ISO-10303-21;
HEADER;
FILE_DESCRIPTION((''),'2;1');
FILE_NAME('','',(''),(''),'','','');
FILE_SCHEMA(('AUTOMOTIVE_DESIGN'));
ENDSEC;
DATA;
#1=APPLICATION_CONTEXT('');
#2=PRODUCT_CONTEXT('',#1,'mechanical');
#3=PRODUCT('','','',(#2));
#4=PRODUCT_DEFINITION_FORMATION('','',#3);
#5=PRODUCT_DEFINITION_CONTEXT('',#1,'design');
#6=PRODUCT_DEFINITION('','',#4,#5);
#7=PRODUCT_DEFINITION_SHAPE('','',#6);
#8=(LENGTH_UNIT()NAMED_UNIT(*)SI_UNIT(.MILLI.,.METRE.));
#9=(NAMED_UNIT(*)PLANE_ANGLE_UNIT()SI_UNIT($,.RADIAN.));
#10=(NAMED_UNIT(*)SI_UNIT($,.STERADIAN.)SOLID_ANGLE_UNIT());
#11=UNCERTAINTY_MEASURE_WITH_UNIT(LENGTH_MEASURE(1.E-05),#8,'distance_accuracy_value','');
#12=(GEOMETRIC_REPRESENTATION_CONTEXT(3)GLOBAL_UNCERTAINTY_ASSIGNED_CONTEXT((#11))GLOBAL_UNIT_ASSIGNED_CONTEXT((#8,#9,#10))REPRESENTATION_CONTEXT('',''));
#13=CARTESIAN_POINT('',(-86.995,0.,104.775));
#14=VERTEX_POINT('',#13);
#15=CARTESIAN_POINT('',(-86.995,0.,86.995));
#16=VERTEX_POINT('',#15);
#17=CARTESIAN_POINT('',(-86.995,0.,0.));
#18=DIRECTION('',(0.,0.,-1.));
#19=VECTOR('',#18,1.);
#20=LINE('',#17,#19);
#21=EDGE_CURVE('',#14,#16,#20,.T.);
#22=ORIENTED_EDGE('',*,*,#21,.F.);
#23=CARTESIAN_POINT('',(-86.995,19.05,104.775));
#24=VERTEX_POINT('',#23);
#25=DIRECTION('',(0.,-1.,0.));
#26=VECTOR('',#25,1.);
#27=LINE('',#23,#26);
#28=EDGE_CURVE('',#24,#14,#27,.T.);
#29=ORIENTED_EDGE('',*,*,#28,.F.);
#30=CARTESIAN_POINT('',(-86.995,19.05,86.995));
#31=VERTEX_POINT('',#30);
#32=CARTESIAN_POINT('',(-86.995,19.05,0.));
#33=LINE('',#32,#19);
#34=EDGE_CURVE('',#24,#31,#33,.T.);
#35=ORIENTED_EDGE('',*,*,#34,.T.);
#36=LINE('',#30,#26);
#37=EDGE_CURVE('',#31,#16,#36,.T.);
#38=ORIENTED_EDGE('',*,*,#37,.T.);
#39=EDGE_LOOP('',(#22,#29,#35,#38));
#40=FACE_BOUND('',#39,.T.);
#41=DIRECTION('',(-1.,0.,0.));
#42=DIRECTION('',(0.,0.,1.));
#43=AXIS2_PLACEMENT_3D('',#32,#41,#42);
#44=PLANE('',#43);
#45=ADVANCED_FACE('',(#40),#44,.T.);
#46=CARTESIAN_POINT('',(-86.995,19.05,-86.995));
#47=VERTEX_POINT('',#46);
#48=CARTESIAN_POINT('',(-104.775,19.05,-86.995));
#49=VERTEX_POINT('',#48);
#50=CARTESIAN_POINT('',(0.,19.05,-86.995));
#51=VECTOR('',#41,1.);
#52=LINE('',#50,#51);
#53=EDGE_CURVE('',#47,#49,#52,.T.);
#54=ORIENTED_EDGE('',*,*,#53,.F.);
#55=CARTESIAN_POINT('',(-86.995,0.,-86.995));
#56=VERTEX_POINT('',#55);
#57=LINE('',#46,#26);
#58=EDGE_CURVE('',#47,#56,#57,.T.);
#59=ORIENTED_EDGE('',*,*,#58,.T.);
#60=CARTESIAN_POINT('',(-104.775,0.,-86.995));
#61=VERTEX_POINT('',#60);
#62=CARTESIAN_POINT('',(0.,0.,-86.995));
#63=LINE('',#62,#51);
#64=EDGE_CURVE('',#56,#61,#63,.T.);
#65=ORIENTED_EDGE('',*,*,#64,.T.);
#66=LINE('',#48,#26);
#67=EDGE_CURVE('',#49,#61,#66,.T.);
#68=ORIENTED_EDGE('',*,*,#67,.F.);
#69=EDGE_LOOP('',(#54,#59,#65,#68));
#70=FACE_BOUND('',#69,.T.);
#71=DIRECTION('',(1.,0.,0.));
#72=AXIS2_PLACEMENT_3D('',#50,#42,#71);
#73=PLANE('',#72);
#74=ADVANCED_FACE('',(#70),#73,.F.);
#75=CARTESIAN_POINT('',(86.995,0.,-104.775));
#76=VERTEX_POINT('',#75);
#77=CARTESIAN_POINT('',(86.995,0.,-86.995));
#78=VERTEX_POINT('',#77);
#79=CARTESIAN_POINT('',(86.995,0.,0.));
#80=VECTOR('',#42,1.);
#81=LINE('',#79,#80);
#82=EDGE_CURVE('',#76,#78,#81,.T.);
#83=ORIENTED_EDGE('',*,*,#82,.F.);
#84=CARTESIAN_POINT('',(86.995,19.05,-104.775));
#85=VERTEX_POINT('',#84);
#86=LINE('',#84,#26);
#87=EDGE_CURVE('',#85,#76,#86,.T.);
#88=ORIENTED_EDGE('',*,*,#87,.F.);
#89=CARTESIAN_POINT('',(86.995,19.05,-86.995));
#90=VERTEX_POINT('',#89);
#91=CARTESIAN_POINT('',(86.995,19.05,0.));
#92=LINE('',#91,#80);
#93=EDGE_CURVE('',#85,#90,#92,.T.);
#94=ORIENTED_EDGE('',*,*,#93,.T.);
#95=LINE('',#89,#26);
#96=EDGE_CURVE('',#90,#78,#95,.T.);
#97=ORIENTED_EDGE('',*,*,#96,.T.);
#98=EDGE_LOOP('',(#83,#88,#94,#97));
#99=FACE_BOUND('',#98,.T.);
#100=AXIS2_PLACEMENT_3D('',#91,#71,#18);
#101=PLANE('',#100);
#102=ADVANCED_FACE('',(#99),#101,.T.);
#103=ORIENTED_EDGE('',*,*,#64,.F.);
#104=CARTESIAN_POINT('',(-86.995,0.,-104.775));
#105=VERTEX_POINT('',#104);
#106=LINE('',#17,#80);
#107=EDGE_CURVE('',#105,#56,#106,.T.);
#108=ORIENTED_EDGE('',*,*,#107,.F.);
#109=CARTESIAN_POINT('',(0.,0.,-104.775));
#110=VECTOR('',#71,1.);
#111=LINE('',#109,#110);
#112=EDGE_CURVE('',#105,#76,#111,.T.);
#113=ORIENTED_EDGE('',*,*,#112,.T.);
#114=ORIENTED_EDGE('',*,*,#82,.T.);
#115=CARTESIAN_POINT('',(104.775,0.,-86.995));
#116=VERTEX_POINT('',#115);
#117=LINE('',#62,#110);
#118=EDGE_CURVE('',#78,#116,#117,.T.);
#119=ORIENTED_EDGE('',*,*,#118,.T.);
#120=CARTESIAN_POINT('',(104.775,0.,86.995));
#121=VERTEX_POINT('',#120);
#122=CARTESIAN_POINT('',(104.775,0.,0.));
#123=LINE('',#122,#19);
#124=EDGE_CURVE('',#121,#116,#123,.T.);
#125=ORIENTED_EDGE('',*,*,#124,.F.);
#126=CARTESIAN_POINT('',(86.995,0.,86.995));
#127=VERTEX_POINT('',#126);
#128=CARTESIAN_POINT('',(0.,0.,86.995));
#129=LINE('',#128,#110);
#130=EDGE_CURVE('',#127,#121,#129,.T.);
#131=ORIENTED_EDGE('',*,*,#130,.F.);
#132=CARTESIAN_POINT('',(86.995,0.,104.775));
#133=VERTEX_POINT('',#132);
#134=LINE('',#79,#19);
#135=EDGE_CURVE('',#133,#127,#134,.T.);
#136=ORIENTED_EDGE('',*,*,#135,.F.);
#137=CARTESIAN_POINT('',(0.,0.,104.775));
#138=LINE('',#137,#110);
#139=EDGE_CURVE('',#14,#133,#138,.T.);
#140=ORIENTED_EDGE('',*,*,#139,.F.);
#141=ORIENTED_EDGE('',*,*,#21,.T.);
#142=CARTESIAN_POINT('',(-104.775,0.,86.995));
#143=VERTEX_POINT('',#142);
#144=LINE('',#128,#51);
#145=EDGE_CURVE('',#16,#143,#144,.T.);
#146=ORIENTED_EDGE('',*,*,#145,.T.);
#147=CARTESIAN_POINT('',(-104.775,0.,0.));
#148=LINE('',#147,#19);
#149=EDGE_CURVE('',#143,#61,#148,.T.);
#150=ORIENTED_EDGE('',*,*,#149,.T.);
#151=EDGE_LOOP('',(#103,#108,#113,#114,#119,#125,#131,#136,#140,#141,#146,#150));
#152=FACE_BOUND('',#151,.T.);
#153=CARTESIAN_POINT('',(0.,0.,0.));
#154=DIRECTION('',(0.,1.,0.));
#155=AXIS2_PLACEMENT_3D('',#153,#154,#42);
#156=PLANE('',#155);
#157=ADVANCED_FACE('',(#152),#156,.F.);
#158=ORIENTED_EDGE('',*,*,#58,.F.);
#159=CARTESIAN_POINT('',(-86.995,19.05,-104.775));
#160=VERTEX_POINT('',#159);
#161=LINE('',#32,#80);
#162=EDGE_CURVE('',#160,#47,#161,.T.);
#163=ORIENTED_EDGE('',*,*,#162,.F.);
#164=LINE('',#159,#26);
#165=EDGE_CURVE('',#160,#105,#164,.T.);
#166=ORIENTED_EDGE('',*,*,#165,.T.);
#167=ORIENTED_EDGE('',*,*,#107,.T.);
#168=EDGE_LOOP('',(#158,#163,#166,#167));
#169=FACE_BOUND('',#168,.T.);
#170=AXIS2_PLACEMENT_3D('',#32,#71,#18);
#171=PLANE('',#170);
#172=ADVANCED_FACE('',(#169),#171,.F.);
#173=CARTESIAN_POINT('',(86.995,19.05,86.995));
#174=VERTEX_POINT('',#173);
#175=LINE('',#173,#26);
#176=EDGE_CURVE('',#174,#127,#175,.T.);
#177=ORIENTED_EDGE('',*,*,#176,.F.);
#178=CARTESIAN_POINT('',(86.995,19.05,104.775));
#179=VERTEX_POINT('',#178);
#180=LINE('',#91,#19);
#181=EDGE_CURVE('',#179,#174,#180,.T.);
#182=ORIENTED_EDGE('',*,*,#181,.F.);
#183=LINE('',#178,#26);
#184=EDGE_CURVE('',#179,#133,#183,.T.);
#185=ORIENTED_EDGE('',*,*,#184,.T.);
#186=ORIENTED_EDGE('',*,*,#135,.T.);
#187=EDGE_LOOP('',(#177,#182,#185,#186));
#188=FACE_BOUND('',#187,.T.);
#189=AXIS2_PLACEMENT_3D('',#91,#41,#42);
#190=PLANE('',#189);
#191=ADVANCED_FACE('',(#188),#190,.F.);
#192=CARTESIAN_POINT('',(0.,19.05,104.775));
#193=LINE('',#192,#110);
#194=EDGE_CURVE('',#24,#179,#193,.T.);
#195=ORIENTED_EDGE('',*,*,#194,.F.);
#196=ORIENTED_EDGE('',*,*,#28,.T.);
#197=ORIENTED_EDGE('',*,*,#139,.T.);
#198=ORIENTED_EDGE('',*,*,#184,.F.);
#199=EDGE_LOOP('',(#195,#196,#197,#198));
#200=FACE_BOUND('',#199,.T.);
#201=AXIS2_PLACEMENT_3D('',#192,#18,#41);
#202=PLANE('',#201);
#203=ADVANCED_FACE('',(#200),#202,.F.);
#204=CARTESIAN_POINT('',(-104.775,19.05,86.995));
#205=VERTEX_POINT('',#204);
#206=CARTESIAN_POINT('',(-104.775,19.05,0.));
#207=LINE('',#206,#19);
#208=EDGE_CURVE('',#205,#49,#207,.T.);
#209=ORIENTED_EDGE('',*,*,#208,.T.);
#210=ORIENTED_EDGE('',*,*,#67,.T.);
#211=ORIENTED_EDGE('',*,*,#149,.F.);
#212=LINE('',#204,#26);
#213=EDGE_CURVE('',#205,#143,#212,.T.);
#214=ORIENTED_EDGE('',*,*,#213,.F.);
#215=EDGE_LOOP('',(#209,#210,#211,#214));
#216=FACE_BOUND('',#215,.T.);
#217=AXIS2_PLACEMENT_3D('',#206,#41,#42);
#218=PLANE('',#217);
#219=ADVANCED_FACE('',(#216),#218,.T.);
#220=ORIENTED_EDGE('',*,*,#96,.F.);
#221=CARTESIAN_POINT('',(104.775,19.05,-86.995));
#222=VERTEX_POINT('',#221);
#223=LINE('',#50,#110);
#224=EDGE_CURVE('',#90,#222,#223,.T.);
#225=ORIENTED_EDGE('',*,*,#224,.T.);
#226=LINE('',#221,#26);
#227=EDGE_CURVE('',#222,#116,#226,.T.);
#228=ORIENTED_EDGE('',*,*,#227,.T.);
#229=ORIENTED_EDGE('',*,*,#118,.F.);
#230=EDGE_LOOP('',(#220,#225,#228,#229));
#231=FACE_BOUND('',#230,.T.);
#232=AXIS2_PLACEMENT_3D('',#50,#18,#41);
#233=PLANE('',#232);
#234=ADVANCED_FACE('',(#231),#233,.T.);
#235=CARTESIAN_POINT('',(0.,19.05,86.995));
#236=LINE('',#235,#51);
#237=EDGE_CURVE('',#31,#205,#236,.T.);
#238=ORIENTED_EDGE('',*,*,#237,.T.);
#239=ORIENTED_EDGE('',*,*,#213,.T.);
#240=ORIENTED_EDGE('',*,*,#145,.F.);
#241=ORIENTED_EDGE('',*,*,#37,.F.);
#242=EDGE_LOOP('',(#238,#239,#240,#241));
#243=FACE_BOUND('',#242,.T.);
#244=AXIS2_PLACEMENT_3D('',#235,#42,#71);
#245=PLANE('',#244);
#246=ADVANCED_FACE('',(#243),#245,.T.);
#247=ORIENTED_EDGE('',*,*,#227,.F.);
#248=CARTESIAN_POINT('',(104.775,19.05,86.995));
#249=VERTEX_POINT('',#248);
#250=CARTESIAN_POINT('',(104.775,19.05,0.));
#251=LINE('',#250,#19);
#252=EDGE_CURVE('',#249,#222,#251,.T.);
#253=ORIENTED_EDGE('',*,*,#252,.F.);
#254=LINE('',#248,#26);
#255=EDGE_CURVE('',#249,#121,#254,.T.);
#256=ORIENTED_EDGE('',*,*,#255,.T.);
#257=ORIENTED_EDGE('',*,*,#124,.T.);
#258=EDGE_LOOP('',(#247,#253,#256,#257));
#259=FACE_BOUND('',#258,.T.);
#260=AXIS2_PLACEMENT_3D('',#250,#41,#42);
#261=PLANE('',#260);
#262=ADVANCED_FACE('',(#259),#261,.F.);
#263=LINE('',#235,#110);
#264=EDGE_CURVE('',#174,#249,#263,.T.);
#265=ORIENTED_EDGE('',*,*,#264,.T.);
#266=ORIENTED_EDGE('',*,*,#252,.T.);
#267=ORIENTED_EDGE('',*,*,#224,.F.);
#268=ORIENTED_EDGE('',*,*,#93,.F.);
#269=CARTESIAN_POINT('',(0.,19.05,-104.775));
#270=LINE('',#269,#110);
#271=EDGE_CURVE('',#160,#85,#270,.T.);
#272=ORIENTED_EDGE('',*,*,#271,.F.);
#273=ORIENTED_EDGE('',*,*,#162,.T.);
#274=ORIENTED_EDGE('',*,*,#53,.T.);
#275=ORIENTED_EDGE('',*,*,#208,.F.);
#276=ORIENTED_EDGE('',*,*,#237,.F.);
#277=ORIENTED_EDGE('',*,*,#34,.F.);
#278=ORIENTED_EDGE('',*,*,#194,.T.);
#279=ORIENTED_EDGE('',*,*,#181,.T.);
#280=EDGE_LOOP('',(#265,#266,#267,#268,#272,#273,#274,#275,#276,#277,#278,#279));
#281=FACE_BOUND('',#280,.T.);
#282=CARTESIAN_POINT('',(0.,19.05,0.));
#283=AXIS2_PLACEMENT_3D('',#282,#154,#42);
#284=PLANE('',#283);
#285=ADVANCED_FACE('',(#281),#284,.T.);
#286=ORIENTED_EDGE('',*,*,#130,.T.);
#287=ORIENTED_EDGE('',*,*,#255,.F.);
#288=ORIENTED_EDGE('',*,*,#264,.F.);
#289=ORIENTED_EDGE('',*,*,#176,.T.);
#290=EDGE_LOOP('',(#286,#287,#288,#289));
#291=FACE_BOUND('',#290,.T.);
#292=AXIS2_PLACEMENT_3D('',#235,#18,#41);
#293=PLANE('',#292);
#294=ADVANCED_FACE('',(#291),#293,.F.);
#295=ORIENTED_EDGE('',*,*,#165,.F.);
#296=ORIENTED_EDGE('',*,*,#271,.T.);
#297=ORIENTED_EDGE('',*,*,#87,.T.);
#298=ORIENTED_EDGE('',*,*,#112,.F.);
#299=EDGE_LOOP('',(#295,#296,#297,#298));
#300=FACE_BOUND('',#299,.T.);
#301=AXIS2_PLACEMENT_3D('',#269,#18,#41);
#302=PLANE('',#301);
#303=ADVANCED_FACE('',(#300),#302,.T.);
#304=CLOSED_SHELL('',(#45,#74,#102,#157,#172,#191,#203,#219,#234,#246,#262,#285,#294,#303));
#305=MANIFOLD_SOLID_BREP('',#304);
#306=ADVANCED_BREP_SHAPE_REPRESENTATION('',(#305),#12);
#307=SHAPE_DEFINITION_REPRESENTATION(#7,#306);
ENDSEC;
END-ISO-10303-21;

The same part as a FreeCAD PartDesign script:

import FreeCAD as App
import Part
import Sketcher

V = App.Vector
Q = App.Units.Quantity


def add_polygon(sketch, points):
    """Adds a closed chain of lines whose ends are joined by coincident constraints."""
    first, n = sketch.GeometryCount, len(points)
    for a, b in zip(points, points[1:] + points[:1]):
        sketch.addGeometry(Part.LineSegment(App.Vector(*a, 0), App.Vector(*b, 0)), False)
    for i in range(n):
        sketch.addConstraint(Sketcher.Constraint("Coincident", first + i, 2, first + (i + 1) % n, 1))

doc = App.newDocument("Part")
params = doc.addObject("Spreadsheet::Sheet", "Params")
for row, (alias, value) in enumerate([
    ("sketch1_width", "0.7 in"),
    ("sketch1_width2", "6.85 in"),
    ("pad1_length", "0.75 in"),
], start=1):
    params.set(f"A{row}", alias)
    params.set(f"B{row}", "=" + value)
    params.setAlias(f"B{row}", alias)

body = doc.addObject("PartDesign::Body", "Body")

sketch1 = body.newObject("Sketcher::SketchObject", "Sketch")
sketch1.AttachmentSupport = (doc.getObject("XZ_Plane"), [""])
sketch1.MapMode = "FlatFace"
add_polygon(sketch1, [(87, -105), (-87, -105), (-87, -87), (-105, -87), (-105, 87), (-87, 87), (-87, 105), (87, 105), (87, 87), (105, 87), (105, -87), (87, -87)])
sketch1.addConstraint([
    Sketcher.Constraint("Horizontal", 0),
    Sketcher.Constraint("Vertical", 1),
    Sketcher.Constraint("Horizontal", 2),
    Sketcher.Constraint("Vertical", 3),
    Sketcher.Constraint("Horizontal", 4),
    Sketcher.Constraint("Vertical", 5),
    Sketcher.Constraint("Horizontal", 6),
    Sketcher.Constraint("Vertical", 7),
    Sketcher.Constraint("Horizontal", 8),
    Sketcher.Constraint("Vertical", 9),
    Sketcher.Constraint("Horizontal", 10),
    Sketcher.Constraint("Vertical", 11),
    Sketcher.Constraint("Symmetric", 0, 2, 6, 2, -1, 1),
    Sketcher.Constraint("Symmetric", 2, 2, 8, 2, -1, 1),
    Sketcher.Constraint("Symmetric", 4, 2, 10, 2, -1, 1),
    Sketcher.Constraint("Symmetric", 4, 2, 7, 2, -2),
    Sketcher.Constraint("Equal", 10, 1),
    Sketcher.Constraint("Equal", 6, 3),
    Sketcher.Constraint("DistanceX", 2, 2, 2, 1, Q("0.7 in")),
    Sketcher.Constraint("DistanceX", 0, 2, 0, 1, Q("6.85 in")),
])
sketch1.setExpression("Constraints[30]", "Params.sketch1_width")
sketch1.setExpression("Constraints[31]", "Params.sketch1_width2")
pad1 = body.newObject("PartDesign::Pad", "Pad")
pad1.Profile = sketch1
pad1.setExpression("Length", "Params.pad1_length")
pad1.Reversed = True

doc.recompute()
